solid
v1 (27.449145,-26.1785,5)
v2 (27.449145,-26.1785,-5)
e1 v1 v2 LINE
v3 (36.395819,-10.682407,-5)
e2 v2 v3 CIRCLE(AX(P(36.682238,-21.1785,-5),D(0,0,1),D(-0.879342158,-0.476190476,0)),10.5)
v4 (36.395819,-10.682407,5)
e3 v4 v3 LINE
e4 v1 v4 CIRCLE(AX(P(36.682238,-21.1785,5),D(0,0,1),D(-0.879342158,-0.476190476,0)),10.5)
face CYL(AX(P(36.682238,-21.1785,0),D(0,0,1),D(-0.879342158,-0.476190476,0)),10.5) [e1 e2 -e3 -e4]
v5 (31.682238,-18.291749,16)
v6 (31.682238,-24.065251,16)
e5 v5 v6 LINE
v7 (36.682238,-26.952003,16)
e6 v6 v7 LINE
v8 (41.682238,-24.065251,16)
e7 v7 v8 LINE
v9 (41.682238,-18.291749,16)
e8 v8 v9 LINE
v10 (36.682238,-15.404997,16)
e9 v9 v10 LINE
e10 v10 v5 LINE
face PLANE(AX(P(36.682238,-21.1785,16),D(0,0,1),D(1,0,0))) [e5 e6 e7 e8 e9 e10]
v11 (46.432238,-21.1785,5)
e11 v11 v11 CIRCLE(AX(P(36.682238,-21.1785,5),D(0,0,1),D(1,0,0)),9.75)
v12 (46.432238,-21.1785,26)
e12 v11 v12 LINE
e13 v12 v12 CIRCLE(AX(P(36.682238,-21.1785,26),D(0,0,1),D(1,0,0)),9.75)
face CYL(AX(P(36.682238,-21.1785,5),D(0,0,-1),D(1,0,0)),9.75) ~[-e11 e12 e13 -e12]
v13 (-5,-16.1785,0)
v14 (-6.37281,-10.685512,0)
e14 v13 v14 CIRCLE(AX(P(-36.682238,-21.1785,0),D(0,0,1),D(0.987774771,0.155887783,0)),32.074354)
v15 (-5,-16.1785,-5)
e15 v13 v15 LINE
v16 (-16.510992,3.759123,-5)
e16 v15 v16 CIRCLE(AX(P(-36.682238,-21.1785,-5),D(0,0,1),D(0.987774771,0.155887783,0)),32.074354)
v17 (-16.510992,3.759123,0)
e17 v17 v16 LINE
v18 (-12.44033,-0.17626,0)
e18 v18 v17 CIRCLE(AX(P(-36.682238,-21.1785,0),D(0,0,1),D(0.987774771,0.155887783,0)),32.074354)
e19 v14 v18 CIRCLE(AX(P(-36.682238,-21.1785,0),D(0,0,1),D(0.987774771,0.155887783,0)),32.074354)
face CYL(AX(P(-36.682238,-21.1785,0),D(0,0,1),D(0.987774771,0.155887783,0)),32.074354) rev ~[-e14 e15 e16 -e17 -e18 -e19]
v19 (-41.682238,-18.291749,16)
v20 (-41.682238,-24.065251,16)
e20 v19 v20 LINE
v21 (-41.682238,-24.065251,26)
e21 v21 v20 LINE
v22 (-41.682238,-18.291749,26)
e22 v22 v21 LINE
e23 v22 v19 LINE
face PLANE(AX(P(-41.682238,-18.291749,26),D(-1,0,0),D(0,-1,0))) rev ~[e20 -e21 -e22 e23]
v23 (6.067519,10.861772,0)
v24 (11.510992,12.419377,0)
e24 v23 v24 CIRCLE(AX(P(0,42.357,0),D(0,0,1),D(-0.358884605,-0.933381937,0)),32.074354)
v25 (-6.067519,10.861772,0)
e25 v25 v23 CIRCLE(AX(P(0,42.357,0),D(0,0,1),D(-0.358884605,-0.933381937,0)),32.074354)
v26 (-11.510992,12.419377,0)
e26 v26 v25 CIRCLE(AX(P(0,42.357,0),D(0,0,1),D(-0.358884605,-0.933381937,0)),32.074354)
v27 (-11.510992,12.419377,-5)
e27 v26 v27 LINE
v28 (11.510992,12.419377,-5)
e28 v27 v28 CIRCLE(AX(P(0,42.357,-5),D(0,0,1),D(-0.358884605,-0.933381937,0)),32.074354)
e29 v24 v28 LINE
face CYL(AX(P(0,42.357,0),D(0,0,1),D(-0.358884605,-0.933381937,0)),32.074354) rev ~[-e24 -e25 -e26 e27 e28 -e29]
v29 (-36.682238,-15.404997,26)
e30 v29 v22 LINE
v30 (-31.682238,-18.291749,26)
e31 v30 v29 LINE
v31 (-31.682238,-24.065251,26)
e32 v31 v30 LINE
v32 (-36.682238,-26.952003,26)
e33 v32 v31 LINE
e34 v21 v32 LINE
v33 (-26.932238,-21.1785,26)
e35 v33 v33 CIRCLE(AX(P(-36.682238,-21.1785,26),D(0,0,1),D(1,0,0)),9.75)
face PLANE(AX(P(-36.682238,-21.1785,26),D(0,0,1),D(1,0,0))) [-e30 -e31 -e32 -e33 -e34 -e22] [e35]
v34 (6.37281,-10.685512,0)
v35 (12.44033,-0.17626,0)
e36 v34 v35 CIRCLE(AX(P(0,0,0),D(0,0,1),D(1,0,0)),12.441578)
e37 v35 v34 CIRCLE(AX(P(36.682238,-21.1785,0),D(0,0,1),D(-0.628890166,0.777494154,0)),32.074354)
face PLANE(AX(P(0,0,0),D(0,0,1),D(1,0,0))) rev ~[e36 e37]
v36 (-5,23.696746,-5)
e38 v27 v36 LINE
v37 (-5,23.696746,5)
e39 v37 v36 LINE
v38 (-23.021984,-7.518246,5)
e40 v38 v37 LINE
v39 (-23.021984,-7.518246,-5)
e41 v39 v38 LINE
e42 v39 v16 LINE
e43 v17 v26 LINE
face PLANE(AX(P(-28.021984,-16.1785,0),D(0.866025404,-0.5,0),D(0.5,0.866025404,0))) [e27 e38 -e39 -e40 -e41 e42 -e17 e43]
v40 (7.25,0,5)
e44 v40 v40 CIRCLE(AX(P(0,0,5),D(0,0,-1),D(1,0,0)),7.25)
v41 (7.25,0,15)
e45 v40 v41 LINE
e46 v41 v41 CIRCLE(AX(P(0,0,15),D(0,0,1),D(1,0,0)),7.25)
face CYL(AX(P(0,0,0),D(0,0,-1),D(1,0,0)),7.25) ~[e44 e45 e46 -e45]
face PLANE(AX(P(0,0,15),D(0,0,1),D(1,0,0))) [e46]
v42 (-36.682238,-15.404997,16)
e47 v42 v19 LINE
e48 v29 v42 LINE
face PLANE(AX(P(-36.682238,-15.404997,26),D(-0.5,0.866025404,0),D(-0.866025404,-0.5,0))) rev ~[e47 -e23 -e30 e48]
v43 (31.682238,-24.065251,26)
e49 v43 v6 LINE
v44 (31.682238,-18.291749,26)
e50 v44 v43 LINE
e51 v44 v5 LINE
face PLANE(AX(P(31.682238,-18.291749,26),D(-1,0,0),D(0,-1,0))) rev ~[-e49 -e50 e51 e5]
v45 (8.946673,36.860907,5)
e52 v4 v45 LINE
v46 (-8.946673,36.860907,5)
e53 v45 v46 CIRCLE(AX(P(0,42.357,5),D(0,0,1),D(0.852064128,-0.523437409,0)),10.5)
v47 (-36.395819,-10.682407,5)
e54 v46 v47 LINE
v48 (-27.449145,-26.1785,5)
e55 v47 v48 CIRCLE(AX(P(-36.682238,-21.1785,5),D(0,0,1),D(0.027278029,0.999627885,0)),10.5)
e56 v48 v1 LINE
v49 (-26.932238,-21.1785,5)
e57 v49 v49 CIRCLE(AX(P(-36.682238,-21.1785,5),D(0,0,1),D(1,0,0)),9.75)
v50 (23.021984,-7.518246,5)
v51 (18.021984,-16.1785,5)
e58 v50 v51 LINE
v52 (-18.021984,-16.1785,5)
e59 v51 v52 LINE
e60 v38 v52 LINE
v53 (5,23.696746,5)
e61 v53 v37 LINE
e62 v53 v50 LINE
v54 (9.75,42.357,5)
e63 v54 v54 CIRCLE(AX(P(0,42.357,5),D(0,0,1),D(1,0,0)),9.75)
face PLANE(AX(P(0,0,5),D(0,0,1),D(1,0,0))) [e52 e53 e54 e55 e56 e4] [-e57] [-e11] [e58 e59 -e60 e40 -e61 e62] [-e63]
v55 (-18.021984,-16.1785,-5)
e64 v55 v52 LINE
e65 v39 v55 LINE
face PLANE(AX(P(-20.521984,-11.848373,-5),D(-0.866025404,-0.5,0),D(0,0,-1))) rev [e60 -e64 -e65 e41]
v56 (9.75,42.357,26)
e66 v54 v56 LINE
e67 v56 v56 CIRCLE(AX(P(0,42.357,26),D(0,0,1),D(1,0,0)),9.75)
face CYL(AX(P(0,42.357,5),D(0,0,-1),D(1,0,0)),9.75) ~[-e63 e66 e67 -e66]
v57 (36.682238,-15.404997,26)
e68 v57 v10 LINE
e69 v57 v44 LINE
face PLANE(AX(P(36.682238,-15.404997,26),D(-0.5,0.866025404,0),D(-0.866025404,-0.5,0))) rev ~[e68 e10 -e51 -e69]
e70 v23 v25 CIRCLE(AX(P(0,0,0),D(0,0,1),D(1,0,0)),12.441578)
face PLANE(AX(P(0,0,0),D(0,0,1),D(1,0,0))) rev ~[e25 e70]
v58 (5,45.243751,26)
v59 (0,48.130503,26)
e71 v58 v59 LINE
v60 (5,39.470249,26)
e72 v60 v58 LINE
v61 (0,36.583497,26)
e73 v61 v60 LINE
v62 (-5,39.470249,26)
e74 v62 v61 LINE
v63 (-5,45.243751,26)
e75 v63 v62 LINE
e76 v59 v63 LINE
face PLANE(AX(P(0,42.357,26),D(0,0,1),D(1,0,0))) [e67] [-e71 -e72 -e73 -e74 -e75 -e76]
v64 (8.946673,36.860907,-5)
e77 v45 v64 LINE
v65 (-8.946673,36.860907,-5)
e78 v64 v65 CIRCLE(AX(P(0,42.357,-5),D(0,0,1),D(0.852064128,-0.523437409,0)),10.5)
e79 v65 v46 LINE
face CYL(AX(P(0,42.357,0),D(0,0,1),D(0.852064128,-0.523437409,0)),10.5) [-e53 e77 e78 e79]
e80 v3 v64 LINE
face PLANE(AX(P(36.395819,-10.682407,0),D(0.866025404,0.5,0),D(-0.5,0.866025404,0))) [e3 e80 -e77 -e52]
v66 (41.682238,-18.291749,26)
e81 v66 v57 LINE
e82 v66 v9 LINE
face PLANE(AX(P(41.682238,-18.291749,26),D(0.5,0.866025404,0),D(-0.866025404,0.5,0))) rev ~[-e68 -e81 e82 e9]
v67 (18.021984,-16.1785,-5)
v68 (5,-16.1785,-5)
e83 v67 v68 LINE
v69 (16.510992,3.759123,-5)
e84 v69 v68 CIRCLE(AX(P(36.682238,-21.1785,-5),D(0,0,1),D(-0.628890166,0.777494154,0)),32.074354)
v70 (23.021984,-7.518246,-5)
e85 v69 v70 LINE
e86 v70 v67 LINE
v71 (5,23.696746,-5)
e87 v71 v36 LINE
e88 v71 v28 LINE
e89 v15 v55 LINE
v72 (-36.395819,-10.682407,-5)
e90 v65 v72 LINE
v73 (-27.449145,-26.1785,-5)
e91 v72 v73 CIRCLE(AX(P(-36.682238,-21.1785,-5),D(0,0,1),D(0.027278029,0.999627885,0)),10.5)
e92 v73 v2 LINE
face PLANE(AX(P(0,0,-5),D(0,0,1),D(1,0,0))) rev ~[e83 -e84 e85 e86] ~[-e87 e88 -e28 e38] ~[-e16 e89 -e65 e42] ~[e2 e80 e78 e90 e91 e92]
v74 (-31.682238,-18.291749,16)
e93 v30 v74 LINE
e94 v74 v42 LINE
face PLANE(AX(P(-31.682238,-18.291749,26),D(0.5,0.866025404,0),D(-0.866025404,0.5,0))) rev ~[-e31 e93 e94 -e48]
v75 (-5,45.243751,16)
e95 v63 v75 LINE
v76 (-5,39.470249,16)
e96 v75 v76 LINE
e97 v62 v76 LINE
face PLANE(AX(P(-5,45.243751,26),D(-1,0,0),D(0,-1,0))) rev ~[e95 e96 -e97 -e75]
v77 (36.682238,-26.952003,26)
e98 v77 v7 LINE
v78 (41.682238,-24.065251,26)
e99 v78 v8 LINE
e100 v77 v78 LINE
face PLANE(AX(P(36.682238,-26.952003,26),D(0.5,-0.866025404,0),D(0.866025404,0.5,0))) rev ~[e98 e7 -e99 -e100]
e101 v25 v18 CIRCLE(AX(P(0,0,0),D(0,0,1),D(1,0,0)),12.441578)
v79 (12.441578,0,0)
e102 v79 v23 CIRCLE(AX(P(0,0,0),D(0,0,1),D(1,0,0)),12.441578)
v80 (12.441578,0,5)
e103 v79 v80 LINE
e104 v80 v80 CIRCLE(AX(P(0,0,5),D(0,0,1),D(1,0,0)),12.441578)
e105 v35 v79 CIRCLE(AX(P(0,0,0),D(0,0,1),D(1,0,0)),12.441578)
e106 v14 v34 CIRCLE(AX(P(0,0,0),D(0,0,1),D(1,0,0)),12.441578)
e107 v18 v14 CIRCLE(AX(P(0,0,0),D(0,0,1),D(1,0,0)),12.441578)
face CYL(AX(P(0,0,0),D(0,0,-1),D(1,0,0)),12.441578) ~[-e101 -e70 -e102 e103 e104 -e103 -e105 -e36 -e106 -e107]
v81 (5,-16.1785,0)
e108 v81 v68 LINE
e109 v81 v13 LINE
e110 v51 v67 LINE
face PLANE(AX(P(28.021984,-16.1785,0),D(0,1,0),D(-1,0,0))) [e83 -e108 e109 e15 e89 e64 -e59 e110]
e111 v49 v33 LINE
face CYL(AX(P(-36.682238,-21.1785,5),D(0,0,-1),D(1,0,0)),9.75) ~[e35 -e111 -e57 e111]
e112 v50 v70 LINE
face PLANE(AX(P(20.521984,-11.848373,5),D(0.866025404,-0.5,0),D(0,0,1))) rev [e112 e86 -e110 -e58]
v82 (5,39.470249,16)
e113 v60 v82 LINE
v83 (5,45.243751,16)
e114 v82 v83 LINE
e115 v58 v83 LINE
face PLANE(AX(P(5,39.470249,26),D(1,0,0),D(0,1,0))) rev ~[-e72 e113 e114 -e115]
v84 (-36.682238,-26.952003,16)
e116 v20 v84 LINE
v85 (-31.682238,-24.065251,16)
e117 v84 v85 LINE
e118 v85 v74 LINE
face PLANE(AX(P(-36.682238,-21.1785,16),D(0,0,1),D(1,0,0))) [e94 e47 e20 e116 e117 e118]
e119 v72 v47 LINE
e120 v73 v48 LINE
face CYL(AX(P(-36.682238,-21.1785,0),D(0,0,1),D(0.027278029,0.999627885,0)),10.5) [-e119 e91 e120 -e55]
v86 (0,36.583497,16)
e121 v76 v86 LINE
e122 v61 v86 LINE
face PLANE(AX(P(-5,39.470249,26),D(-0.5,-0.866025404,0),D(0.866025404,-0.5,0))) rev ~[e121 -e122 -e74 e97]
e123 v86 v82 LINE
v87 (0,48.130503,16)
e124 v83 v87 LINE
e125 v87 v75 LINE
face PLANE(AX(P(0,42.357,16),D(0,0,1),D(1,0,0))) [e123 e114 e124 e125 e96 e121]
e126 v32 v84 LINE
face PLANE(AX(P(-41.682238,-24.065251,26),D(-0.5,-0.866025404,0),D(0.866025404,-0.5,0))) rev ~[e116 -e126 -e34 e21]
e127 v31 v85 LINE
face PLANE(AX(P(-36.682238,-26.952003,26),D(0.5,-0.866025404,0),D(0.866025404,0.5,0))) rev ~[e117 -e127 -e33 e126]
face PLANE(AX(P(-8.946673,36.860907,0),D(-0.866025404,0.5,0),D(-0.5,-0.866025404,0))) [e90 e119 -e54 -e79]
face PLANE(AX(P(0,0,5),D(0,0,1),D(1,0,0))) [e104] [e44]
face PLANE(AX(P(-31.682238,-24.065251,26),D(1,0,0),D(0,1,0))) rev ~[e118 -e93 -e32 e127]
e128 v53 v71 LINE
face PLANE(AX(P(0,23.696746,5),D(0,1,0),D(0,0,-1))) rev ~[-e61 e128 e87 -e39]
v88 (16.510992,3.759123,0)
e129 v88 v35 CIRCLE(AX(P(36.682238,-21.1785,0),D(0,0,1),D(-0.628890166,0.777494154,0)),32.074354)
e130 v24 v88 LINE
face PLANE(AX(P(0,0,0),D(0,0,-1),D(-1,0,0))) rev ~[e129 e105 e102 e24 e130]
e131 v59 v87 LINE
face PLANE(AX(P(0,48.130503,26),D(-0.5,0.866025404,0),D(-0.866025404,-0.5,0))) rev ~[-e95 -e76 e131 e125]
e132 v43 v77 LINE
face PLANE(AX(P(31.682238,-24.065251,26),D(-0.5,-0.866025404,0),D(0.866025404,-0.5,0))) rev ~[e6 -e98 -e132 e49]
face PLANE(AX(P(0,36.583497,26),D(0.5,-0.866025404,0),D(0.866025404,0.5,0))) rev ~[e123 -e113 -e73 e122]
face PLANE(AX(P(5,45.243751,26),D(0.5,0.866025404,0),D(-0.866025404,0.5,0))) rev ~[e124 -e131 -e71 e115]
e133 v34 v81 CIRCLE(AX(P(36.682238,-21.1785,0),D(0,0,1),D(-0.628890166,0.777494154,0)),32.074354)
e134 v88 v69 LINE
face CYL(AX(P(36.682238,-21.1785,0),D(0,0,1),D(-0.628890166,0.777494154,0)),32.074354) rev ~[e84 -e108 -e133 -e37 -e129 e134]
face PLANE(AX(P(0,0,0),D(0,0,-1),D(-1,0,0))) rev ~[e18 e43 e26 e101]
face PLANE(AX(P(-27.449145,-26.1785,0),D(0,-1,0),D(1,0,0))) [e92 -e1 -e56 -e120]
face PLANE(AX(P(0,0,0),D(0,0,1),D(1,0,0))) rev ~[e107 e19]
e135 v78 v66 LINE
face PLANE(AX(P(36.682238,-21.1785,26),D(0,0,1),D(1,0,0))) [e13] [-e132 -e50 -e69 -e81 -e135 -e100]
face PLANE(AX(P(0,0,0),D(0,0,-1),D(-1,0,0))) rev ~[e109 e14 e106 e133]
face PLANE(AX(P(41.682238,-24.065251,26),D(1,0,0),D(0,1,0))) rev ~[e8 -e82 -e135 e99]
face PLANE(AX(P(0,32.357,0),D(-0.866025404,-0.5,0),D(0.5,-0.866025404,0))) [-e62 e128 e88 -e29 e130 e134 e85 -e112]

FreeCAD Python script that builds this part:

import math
import FreeCAD as App
import Part
import Sketcher
from FreeCAD import Vector
Q = App.Units.Quantity


def edges_at(feature, points):
    """Names of the edges that pass closest to the given points."""
    edges = feature.Shape.Edges
    near = lambda p: min(range(len(edges)), key=lambda i: edges[i].distToShape(Part.Vertex(*p))[0])
    return sorted({f"Edge{near(p) + 1}" for p in points})


def add_polygon(sketch, points):
    """Adds a closed chain of lines whose ends are joined by coincident constraints."""
    first, n = sketch.GeometryCount, len(points)
    for a, b in zip(points, points[1:] + points[:1]):
        sketch.addGeometry(Part.LineSegment(App.Vector(*a, 0), App.Vector(*b, 0)), False)
    for i in range(n):
        sketch.addConstraint(Sketcher.Constraint("Coincident", first + i, 2, first + (i + 1) % n, 1))

doc = App.newDocument("Part")
body = doc.addObject("PartDesign::Body", "Body")

# Sketch on XY plane
sketch1 = body.newObject("Sketcher::SketchObject", "Sketch")
sketch1.AttachmentSupport = (doc.getObject("XY_Plane"), [""])
sketch1.MapMode = "FlatFace"
sketch1.addGeometry(Part.ArcOfCircle(Part.Circle(Vector(0, 42, 0), Vector(0, 0, 1), 10), math.radians(-32), math.radians(212)), False)  # 0
sketch1.addGeometry(Part.LineSegment(Vector(-9, 37, 0), Vector(-36, -11, 0)), False)  # 1
sketch1.addGeometry(Part.ArcOfCircle(Part.Circle(Vector(-37, -21, 0), Vector(0, 0, 1), 10), math.radians(88), math.radians(332)), False)  # 2
sketch1.addGeometry(Part.LineSegment(Vector(-27, -26, 0), Vector(27, -26, 0)), False)  # 3
sketch1.addGeometry(Part.ArcOfCircle(Part.Circle(Vector(37, -21, 0), Vector(0, 0, 1), 10), math.radians(-152), math.radians(92)), False)  # 4
sketch1.addGeometry(Part.LineSegment(Vector(36, -11, 0), Vector(9, 37, 0)), False)  # 5
add_polygon(sketch1, [(28, -16), (-28, -16), (0, 32)])  # lines 6-8
sketch1.addConstraint(Sketcher.Constraint("Coincident", 0, 2, 1, 1))
sketch1.addConstraint(Sketcher.Constraint("Coincident", 1, 2, 2, 1))
sketch1.addConstraint(Sketcher.Constraint("Coincident", 2, 2, 3, 1))
sketch1.addConstraint(Sketcher.Constraint("Coincident", 3, 2, 4, 1))
sketch1.addConstraint(Sketcher.Constraint("Coincident", 4, 2, 5, 1))
sketch1.addConstraint(Sketcher.Constraint("Coincident", 5, 2, 0, 1))
sketch1.addConstraint(Sketcher.Constraint("Horizontal", 3))
sketch1.addConstraint(Sketcher.Constraint("Horizontal", 6))
sketch1.addConstraint(Sketcher.Constraint("Equal", 0, 2))
sketch1.addConstraint(Sketcher.Constraint("Equal", 2, 4))
sketch1.addConstraint(Sketcher.Constraint("Symmetric", 2, 3, 4, 3, -2))
sketch1.addConstraint(Sketcher.Constraint("Symmetric", 0, 2, 5, 2, -2))
sketch1.addConstraint(Sketcher.Constraint("PointOnObject", 7, 2, -2))
sketch1.addConstraint(Sketcher.Constraint("Parallel", 1, 7))
sketch1.addConstraint(Sketcher.Constraint("Parallel", 5, 8))
sketch1.addConstraint(Sketcher.Constraint("Horizontal", 1, 2, 4, 2))
sketch1.addConstraint(Sketcher.Constraint("Radius", 0, Q("10.5 mm")))
sketch1.addConstraint(Sketcher.Constraint("Angle", 1, Q("-120 deg")))
sketch1.addConstraint(Sketcher.Constraint("DistanceY", 2, 2, 2, 3, Q("5 mm")))
sketch1.addConstraint(Sketcher.Constraint("DistanceY", 2, 3, 6, 2, Q("5 mm")))
sketch1.addConstraint(Sketcher.Constraint("DistanceY", 7, 2, 0, 3, Q("10 mm")))
sketch1.addConstraint(Sketcher.Constraint("DistanceY", -1, 1, 0, 3, Q("42.357 mm")))
sketch1.addConstraint(Sketcher.Constraint("DistanceX", 3, 1, 3, 2, Q("54.898291 mm")))
sketch1.addConstraint(Sketcher.Constraint("DistanceY", 2, 3, -1, 1, Q("21.1785 mm")))
sketch1.addConstraint(Sketcher.Constraint("Distance", 1, Q("54.898291 mm")))
pad1 = body.newObject("PartDesign::Pad", "Pad")
pad1.Profile = sketch1
pad1.Length = 10
pad1.Midplane = True

# Sketch on XY plane
sketch2 = body.newObject("Sketcher::SketchObject", "Sketch001")
sketch2.AttachmentSupport = (doc.getObject("XY_Plane"), [""])
sketch2.MapMode = "FlatFace"
sketch2.addGeometry(Part.LineSegment(Vector(-12, 12, 0), Vector(-17, 4, 0)), False)
sketch2.addGeometry(Part.ArcOfCircle(Part.Circle(Vector(-37, -21, 0), Vector(0, 0, 1), 32), math.radians(9), math.radians(51)), False)
sketch2.addGeometry(Part.LineSegment(Vector(-5, -16, 0), Vector(5, -16, 0)), False)
sketch2.addGeometry(Part.ArcOfCircle(Part.Circle(Vector(37, -21, 0), Vector(0, 0, 1), 32), math.radians(129), math.radians(171)), False)
sketch2.addGeometry(Part.LineSegment(Vector(17, 4, 0), Vector(12, 12, 0)), False)
sketch2.addGeometry(Part.ArcOfCircle(Part.Circle(Vector(0, 42, 0), Vector(0, 0, 1), 32), math.radians(-111), math.radians(-69)), False)
sketch2.addConstraint(Sketcher.Constraint("Coincident", 0, 2, 1, 2))
sketch2.addConstraint(Sketcher.Constraint("Coincident", 1, 1, 2, 1))
sketch2.addConstraint(Sketcher.Constraint("Coincident", 2, 2, 3, 2))
sketch2.addConstraint(Sketcher.Constraint("Coincident", 3, 1, 4, 1))
sketch2.addConstraint(Sketcher.Constraint("Coincident", 4, 2, 5, 2))
sketch2.addConstraint(Sketcher.Constraint("Coincident", 5, 1, 0, 1))
sketch2.addConstraint(Sketcher.Constraint("Horizontal", 2))
sketch2.addConstraint(Sketcher.Constraint("Equal", 1, 3))
sketch2.addConstraint(Sketcher.Constraint("Equal", 3, 5))
sketch2.addConstraint(Sketcher.Constraint("Symmetric", 1, 3, 3, 3, -2))
sketch2.addConstraint(Sketcher.Constraint("Symmetric", 4, 2, 5, 1, -2))
sketch2.addConstraint(Sketcher.Constraint("Horizontal", 0, 2, 3, 1))
sketch2.addConstraint(Sketcher.Constraint("DistanceX", 2, 1, 2, 2, Q("10 mm")))
sketch2.addConstraint(Sketcher.Constraint("Angle", 0, Q("-120 deg")))
sketch2.addConstraint(Sketcher.Constraint("Distance", 0, Q("10 mm")))
sketch2.addConstraint(Sketcher.Constraint("DistanceY", 1, 3, 1, 1, Q("5 mm")))
sketch2.addConstraint(Sketcher.Constraint("DistanceY", -1, 1, 5, 3, Q("42.357 mm")))
sketch2.addConstraint(Sketcher.Constraint("Radius", 1, Q("32.074354 mm")))
sketch2.addConstraint(Sketcher.Constraint("DistanceY", 1, 3, -1, 1, Q("21.1785 mm")))
pad2 = body.newObject("PartDesign::Pad", "Pad001")
pad2.Profile = sketch2
pad2.Length = 5
pad2.Reversed = True

# Sketch on XY plane
sketch3 = body.newObject("Sketcher::SketchObject", "Sketch002")
sketch3.AttachmentSupport = (doc.getObject("XY_Plane"), [""])
sketch3.MapMode = "FlatFace"
sketch3.AttachmentOffset = App.Placement(Vector(0, 0, 5), App.Rotation())
sketch3.addGeometry(Part.Circle(Vector(-37, -21, 0), Vector(0, 0, 1), 10), False)
sketch3.addGeometry(Part.Circle(Vector(37, -21, 0), Vector(0, 0, 1), 10), False)
sketch3.addGeometry(Part.Circle(Vector(0, 42, 0), Vector(0, 0, 1), 10), False)
sketch3.addConstraint(Sketcher.Constraint("Equal", 0, 1))
sketch3.addConstraint(Sketcher.Constraint("Equal", 1, 2))
sketch3.addConstraint(Sketcher.Constraint("Symmetric", 0, 3, 1, 3, -2))
sketch3.addConstraint(Sketcher.Constraint("PointOnObject", 2, 3, -2))
sketch3.addConstraint(Sketcher.Constraint("Diameter", 0, Q("19.5 mm")))
sketch3.addConstraint(Sketcher.Constraint("DistanceY", -1, 1, 2, 3, Q("42.357 mm")))
sketch3.addConstraint(Sketcher.Constraint("DistanceY", 0, 3, -1, 1, Q("21.1785 mm")))
sketch3.addConstraint(Sketcher.Constraint("DistanceX", 0, 3, -1, 1, Q("36.682238 mm")))
pad3 = body.newObject("PartDesign::Pad", "Pad002")
pad3.Profile = sketch3
pad3.Length = 21

# Sketch on XY plane
sketch4 = body.newObject("Sketcher::SketchObject", "Sketch003")
sketch4.AttachmentSupport = (doc.getObject("XY_Plane"), [""])
sketch4.MapMode = "FlatFace"
sketch4.addGeometry(Part.Circle(Vector(0, 0, 0), Vector(0, 0, 1), 12), False)
sketch4.addConstraint(Sketcher.Constraint("Coincident", 0, 3, -1, 1))
sketch4.addConstraint(Sketcher.Constraint("Diameter", 0, Q("24.883157 mm")))
pad4 = body.newObject("PartDesign::Pad", "Pad003")
pad4.Profile = sketch4
pad4.Length = 5

# Sketch on XY plane
sketch5 = body.newObject("Sketcher::SketchObject", "Sketch004")
sketch5.AttachmentSupport = (doc.getObject("XY_Plane"), [""])
sketch5.MapMode = "FlatFace"
sketch5.addGeometry(Part.Circle(Vector(0, 0, 0), Vector(0, 0, 1), 7), False)
sketch5.addConstraint(Sketcher.Constraint("Coincident", 0, 3, -1, 1))
sketch5.addConstraint(Sketcher.Constraint("Diameter", 0, Q("14.5 mm")))
pad5 = body.newObject("PartDesign::Pad", "Pad004")
pad5.Profile = sketch5
pad5.Length = 15
doc.recompute()

chamfer = body.newObject("PartDesign::Chamfer", "Chamfer")
chamfer.Base = (pad5, edges_at(pad5, [(28.022, -16.178, 0), (-28.022, -16.178, 0), (0, 32.357, 0)]))
chamfer.Size = 10

# Sketch on XY plane
sketch6 = body.newObject("Sketcher::SketchObject", "Sketch005")
sketch6.AttachmentSupport = (doc.getObject("XY_Plane"), [""])
sketch6.MapMode = "FlatFace"
sketch6.AttachmentOffset = App.Placement(Vector(0, 0, 26), App.Rotation())
add_polygon(sketch6, [(-42, -24), (-37, -27), (-32, -24), (-32, -18), (-37, -15), (-42, -18)])  # lines 0-5
add_polygon(sketch6, [(42, -24), (42, -18), (37, -15), (32, -18), (32, -24), (37, -27)])  # lines 6-11
add_polygon(sketch6, [(0, 48), (-5, 45), (-5, 39), (0, 37), (5, 39), (5, 45)])  # lines 12-17
sketch6.addConstraint(Sketcher.Constraint("Vertical", 2))
sketch6.addConstraint(Sketcher.Constraint("Vertical", 5))
sketch6.addConstraint(Sketcher.Constraint("Vertical", 6))
sketch6.addConstraint(Sketcher.Constraint("Vertical", 9))
sketch6.addConstraint(Sketcher.Constraint("Vertical", 13))
sketch6.addConstraint(Sketcher.Constraint("Vertical", 16))
sketch6.addConstraint(Sketcher.Constraint("Symmetric", 4, 2, 6, 2, -2))
sketch6.addConstraint(Sketcher.Constraint("Symmetric", 3, 2, 7, 2, -2))
sketch6.addConstraint(Sketcher.Constraint("Symmetric", 2, 2, 8, 2, -2))
sketch6.addConstraint(Sketcher.Constraint("Symmetric", 0, 2, 10, 2, -2))
sketch6.addConstraint(Sketcher.Constraint("Symmetric", 13, 2, 15, 2, -2))
sketch6.addConstraint(Sketcher.Constraint("PointOnObject", 14, 2, -2))
sketch6.addConstraint(Sketcher.Constraint("PointOnObject", 17, 2, -2))
sketch6.addConstraint(Sketcher.Constraint("Parallel", 0, 3))
sketch6.addConstraint(Sketcher.Constraint("Parallel", 1, 4))
sketch6.addConstraint(Sketcher.Constraint("Parallel", 3, 7))
sketch6.addConstraint(Sketcher.Constraint("Parallel", 7, 10))
sketch6.addConstraint(Sketcher.Constraint("Parallel", 8, 11))
sketch6.addConstraint(Sketcher.Constraint("Parallel", 11, 12))
sketch6.addConstraint(Sketcher.Constraint("Parallel", 10, 14))
sketch6.addConstraint(Sketcher.Constraint("Parallel", 14, 17))
sketch6.addConstraint(Sketcher.Constraint("Horizontal", 2, 2, 4, 2))
sketch6.addConstraint(Sketcher.Constraint("Horizontal", 1, 2, 5, 2))
sketch6.addConstraint(Sketcher.Constraint("Equal", 9, 13))
sketch6.addConstraint(Sketcher.Constraint("Equal", 11, 12))
sketch6.addConstraint(Sketcher.Constraint("Angle", 0, Q("-30 deg")))
sketch6.addConstraint(Sketcher.Constraint("DistanceX", 12, 2, -1, 1, Q("5 mm")))
sketch6.addConstraint(Sketcher.Constraint("DistanceY", 2, 2, 12, 2, Q("63.5355 mm")))
sketch6.addConstraint(Sketcher.Constraint("DistanceY", 2, 1, 2, 2, Q("5.773503 mm")))
sketch6.addConstraint(Sketcher.Constraint("DistanceX", 0, 2, -1, 1, Q("36.682238 mm")))
sketch6.addConstraint(Sketcher.Constraint("DistanceY", 1, 2, -1, 1, Q("24.065251 mm")))
pocket1 = body.newObject("PartDesign::Pocket", "Pocket")
pocket1.Profile = sketch6
pocket1.Length = 10

doc.recompute()
